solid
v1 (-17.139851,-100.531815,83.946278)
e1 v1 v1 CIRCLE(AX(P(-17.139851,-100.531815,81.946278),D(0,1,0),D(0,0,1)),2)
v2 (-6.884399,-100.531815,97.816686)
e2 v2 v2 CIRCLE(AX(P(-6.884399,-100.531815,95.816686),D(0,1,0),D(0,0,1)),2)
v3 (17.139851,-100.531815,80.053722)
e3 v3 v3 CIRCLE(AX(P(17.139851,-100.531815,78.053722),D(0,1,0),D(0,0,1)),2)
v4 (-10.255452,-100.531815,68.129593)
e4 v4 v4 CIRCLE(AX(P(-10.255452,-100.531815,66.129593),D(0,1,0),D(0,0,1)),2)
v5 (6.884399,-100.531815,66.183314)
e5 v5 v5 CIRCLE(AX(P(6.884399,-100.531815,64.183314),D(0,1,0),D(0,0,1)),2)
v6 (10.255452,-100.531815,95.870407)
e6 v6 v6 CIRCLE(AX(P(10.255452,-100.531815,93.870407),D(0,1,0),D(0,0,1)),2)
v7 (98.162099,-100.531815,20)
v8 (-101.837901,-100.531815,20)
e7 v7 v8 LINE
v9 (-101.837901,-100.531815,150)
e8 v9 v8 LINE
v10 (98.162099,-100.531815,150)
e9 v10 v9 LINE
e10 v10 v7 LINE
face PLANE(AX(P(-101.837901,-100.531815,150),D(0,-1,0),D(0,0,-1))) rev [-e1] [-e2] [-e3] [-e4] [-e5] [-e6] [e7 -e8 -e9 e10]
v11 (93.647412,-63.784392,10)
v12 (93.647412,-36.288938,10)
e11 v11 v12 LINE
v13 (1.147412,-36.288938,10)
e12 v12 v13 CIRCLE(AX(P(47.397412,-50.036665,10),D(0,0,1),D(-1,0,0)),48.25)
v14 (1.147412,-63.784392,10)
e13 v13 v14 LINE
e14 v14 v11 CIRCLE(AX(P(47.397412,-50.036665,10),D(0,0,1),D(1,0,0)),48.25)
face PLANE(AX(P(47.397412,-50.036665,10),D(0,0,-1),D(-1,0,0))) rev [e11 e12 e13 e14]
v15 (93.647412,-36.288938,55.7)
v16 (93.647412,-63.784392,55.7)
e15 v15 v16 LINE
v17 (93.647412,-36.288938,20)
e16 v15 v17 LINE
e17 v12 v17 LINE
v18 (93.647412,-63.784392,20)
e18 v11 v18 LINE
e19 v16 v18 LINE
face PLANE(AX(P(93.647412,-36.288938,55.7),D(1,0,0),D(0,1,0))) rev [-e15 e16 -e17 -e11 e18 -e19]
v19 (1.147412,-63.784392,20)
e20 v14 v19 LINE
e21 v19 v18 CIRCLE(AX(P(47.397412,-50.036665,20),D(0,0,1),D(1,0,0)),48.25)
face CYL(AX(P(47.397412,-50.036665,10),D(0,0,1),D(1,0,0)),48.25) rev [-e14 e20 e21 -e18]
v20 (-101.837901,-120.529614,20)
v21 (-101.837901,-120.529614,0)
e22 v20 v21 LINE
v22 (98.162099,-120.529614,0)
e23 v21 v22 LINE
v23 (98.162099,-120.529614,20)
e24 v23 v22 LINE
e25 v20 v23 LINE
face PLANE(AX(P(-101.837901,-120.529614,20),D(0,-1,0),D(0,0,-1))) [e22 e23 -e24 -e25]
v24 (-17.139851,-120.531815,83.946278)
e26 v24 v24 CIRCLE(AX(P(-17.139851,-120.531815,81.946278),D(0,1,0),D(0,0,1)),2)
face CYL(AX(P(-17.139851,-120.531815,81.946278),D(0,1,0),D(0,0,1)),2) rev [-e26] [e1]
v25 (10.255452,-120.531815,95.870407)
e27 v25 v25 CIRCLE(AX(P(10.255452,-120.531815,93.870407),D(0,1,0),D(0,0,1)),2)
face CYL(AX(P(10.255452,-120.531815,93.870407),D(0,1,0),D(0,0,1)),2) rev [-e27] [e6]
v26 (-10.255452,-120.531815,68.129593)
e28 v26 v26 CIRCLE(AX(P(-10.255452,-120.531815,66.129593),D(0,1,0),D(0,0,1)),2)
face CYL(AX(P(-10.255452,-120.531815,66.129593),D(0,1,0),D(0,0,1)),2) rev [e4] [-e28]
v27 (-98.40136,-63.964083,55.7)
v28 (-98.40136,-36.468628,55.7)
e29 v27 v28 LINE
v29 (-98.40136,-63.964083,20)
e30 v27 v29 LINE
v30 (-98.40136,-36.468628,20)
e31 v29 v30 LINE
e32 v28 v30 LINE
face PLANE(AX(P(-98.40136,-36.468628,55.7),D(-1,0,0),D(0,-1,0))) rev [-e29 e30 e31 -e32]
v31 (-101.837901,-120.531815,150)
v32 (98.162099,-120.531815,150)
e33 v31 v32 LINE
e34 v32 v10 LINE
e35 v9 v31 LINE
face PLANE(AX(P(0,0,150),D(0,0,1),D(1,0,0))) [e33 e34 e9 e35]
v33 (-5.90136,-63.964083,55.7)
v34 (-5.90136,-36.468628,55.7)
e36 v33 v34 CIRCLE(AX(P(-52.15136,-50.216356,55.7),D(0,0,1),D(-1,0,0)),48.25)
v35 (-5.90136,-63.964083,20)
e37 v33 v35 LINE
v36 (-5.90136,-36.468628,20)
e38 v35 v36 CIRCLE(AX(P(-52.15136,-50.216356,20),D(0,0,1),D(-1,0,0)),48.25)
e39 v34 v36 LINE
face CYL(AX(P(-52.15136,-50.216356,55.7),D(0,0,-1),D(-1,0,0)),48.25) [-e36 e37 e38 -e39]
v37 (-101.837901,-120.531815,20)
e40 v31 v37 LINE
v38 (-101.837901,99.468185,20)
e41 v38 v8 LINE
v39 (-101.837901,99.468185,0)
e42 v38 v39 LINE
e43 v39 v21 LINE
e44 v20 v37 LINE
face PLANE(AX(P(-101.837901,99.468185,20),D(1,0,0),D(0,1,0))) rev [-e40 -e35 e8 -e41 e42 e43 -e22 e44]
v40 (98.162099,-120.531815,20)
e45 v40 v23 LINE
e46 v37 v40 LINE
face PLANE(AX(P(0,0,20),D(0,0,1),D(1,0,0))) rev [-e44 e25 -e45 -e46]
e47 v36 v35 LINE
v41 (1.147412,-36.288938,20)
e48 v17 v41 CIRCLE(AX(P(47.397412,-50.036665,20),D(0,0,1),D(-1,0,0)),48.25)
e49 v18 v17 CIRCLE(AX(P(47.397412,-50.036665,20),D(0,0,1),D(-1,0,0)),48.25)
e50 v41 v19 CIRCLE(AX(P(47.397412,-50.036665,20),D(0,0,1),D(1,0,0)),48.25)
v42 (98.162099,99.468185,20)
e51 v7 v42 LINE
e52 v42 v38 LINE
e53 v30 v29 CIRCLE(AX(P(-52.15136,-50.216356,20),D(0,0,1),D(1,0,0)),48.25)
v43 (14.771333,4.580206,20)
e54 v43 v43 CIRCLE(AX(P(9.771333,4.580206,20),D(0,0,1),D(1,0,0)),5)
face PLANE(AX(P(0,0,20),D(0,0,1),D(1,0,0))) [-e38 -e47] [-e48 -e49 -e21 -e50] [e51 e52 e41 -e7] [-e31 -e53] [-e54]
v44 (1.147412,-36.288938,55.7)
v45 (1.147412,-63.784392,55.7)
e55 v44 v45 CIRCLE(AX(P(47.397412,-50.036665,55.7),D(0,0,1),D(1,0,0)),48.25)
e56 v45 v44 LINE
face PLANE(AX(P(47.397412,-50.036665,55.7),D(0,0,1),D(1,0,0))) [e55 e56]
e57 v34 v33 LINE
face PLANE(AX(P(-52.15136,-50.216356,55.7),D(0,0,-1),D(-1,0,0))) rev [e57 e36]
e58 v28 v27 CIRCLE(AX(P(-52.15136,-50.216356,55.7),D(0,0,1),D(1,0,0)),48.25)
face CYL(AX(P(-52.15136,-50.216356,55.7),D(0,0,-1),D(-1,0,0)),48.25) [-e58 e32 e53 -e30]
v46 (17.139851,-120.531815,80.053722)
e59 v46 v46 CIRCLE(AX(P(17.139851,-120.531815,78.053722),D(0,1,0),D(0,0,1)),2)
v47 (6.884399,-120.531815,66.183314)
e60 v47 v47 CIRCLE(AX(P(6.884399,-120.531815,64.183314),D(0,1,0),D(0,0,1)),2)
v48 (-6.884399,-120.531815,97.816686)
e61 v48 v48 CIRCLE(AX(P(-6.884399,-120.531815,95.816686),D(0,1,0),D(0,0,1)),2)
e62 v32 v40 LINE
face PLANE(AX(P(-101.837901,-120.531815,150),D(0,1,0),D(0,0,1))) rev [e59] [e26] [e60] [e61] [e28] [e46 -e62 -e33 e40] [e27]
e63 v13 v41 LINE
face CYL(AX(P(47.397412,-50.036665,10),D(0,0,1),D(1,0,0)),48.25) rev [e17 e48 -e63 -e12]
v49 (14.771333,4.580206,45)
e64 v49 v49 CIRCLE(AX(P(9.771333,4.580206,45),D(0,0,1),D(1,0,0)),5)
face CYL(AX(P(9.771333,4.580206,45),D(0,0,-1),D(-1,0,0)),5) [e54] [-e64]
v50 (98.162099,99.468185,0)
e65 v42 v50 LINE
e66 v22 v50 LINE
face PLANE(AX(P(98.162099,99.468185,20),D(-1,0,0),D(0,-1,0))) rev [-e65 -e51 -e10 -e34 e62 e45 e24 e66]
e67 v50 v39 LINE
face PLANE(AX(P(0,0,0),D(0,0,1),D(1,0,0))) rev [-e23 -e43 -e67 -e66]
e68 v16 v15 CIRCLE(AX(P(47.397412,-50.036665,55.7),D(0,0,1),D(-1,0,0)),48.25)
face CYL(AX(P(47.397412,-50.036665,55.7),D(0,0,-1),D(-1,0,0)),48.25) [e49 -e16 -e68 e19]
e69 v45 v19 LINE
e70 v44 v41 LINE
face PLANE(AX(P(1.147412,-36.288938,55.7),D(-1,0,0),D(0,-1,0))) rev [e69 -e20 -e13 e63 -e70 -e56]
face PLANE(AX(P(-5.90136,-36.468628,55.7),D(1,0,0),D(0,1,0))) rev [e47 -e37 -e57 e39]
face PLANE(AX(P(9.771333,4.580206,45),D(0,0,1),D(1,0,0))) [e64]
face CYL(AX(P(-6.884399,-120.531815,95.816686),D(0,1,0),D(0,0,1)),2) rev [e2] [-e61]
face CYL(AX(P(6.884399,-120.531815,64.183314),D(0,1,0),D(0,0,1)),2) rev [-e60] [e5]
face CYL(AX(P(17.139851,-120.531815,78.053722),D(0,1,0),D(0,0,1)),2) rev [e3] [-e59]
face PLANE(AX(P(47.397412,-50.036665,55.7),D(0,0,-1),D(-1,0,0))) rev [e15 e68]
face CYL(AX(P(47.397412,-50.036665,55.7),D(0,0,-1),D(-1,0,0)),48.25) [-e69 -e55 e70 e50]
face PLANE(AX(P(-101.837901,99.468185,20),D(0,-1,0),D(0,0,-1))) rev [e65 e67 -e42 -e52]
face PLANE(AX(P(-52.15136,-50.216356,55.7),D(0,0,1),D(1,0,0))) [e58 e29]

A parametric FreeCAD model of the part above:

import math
import FreeCAD as App
import Part
import Sketcher

V = App.Vector


def add_polygon(sketch, points):
    """Adds a closed chain of lines whose ends are joined by coincident constraints."""
    first, n = sketch.GeometryCount, len(points)
    for a, b in zip(points, points[1:] + points[:1]):
        sketch.addGeometry(Part.LineSegment(App.Vector(*a, 0), App.Vector(*b, 0)), False)
    for i in range(n):
        sketch.addConstraint(Sketcher.Constraint("Coincident", first + i, 2, first + (i + 1) % n, 1))

doc = App.newDocument("Part")
body = doc.addObject("PartDesign::Body", "Body")

sketch1 = body.newObject("Sketcher::SketchObject", "Sketch")
sketch1.AttachmentSupport = (doc.getObject("XY_Plane"), [""])
sketch1.MapMode = "FlatFace"
add_polygon(sketch1, [(-102, 99), (-102, -101), (98, -101), (98, 99)])
sketch1.addConstraint(Sketcher.Constraint("Vertical", 0))
sketch1.addConstraint(Sketcher.Constraint("Horizontal", 1))
sketch1.addConstraint(Sketcher.Constraint("Vertical", 2))
sketch1.addConstraint(Sketcher.Constraint("Horizontal", 3))
sketch1.addConstraint(Sketcher.Constraint("Equal", 3, 0))
sketch1.addConstraint(Sketcher.Constraint("DistanceX", 1, 1, 1, 2, 200.0))
sketch1.addConstraint(Sketcher.Constraint("DistanceX", 0, 2, -1, 1, 101.837901))
sketch1.addConstraint(Sketcher.Constraint("DistanceY", 0, 2, -1, 1, 100.531815))
pad1 = body.newObject("PartDesign::Pad", "Pad")
pad1.Profile = sketch1
pad1.Length = 20

sketch2 = body.newObject("Sketcher::SketchObject", "Sketch001")
sketch2.AttachmentSupport = (doc.getObject("XY_Plane"), [""])
sketch2.MapMode = "FlatFace"
sketch2.AttachmentOffset = App.Placement(V(0, 0, 20), App.Rotation())
sketch2.addGeometry(Part.LineSegment(V(1, -64, 0), V(1, -36, 0)), False)
sketch2.addGeometry(Part.ArcOfCircle(Part.Circle(V(47, -50, 0), V(0, 0, 1), 48), math.radians(163), math.radians(197)), False)
sketch2.addGeometry(Part.LineSegment(V(94, -36, 0), V(94, -64, 0)), False)
sketch2.addGeometry(Part.ArcOfCircle(Part.Circle(V(47, -50, 0), V(0, 0, 1), 48), math.radians(-17), math.radians(17)), False)
sketch2.addConstraint(Sketcher.Constraint("Coincident", 0, 1, 1, 2))
sketch2.addConstraint(Sketcher.Constraint("Coincident", 1, 1, 0, 2))
sketch2.addConstraint(Sketcher.Constraint("Coincident", 2, 1, 3, 2))
sketch2.addConstraint(Sketcher.Constraint("Coincident", 3, 1, 2, 2))
sketch2.addConstraint(Sketcher.Constraint("Vertical", 0))
sketch2.addConstraint(Sketcher.Constraint("Vertical", 2))
sketch2.addConstraint(Sketcher.Constraint("Coincident", 3, 3, 1, 3))
sketch2.addConstraint(Sketcher.Constraint("Equal", 1, 3))
sketch2.addConstraint(Sketcher.Constraint("Horizontal", 1, 1, 2, 1))
sketch2.addConstraint(Sketcher.Constraint("Radius", 1, 48.25))
sketch2.addConstraint(Sketcher.Constraint("DistanceX", 1, 1, 2, 1, 92.5))
sketch2.addConstraint(Sketcher.Constraint("DistanceY", 0, 1, -1, 1, 63.784392))
sketch2.addConstraint(Sketcher.Constraint("DistanceX", -1, 1, 1, 3, 47.397412))
pad2 = body.newObject("PartDesign::Pad", "Pad001")
pad2.Profile = sketch2
pad2.Length = 35.7

sketch3 = body.newObject("Sketcher::SketchObject", "Sketch002")
sketch3.AttachmentSupport = (doc.getObject("XY_Plane"), [""])
sketch3.MapMode = "FlatFace"
sketch3.AttachmentOffset = App.Placement(V(0, 0, 20), App.Rotation())
sketch3.addGeometry(Part.LineSegment(V(-98, -64, 0), V(-98, -36, 0)), False)
sketch3.addGeometry(Part.ArcOfCircle(Part.Circle(V(-52, -50, 0), V(0, 0, 1), 48), math.radians(163), math.radians(197)), False)
sketch3.addGeometry(Part.LineSegment(V(-6, -36, 0), V(-6, -64, 0)), False)
sketch3.addGeometry(Part.ArcOfCircle(Part.Circle(V(-52, -50, 0), V(0, 0, 1), 48), math.radians(-17), math.radians(17)), False)
sketch3.addConstraint(Sketcher.Constraint("Coincident", 0, 1, 1, 2))
sketch3.addConstraint(Sketcher.Constraint("Coincident", 1, 1, 0, 2))
sketch3.addConstraint(Sketcher.Constraint("Coincident", 2, 1, 3, 2))
sketch3.addConstraint(Sketcher.Constraint("Coincident", 3, 1, 2, 2))
sketch3.addConstraint(Sketcher.Constraint("Vertical", 0))
sketch3.addConstraint(Sketcher.Constraint("Vertical", 2))
sketch3.addConstraint(Sketcher.Constraint("Coincident", 3, 3, 1, 3))
sketch3.addConstraint(Sketcher.Constraint("Equal", 1, 3))
sketch3.addConstraint(Sketcher.Constraint("Horizontal", 1, 1, 2, 1))
sketch3.addConstraint(Sketcher.Constraint("Radius", 1, 48.25))
sketch3.addConstraint(Sketcher.Constraint("DistanceX", 1, 1, 2, 1, 92.5))
sketch3.addConstraint(Sketcher.Constraint("DistanceX", 1, 3, -1, 1, 52.15136))
sketch3.addConstraint(Sketcher.Constraint("DistanceY", 1, 1, -1, 1, 36.468628))
pad3 = body.newObject("PartDesign::Pad", "Pad002")
pad3.Profile = sketch3
pad3.Length = 35.7
body2 = doc.addObject("PartDesign::Body", "Body001")

sketch4 = body2.newObject("Sketcher::SketchObject", "Sketch003")
sketch4.AttachmentSupport = (doc.getObject("XY_Plane001"), [""])
sketch4.MapMode = "FlatFace"
sketch4.AttachmentOffset = App.Placement(V(0, 0, 20), App.Rotation())
add_polygon(sketch4, [(-102, -101), (-102, -121), (98, -121), (98, -101)])
sketch4.addConstraint(Sketcher.Constraint("Vertical", 0))
sketch4.addConstraint(Sketcher.Constraint("Horizontal", 1))
sketch4.addConstraint(Sketcher.Constraint("Vertical", 2))
sketch4.addConstraint(Sketcher.Constraint("Horizontal", 3))
sketch4.addConstraint(Sketcher.Constraint("DistanceX", 1, 1, 1, 2, 200.0))
sketch4.addConstraint(Sketcher.Constraint("DistanceY", 0, 2, 0, 1, 20.0))
sketch4.addConstraint(Sketcher.Constraint("DistanceX", 0, 2, -1, 1, 101.837901))
sketch4.addConstraint(Sketcher.Constraint("DistanceY", 0, 2, -1, 1, 120.531815))
pad4 = body2.newObject("PartDesign::Pad", "Pad003")
pad4.Profile = sketch4
pad4.Length = 130
body.AllowCompound = True
doc.recompute()

boolean = body.newObject("PartDesign::Boolean", "Boolean")
boolean.Type = "Fuse"
boolean.addObjects([body2])

sketch5 = body.newObject("Sketcher::SketchObject", "Sketch004")
sketch5.AttachmentSupport = (doc.getObject("YZ_Plane"), [""])
sketch5.MapMode = "FlatFace"
sketch5.AttachmentOffset = App.Placement(V(0, 0, 98.162099), App.Rotation())
add_polygon(sketch5, [(-101, 20), (-121, 20), (-121, 0), (-101, 0)])
sketch5.addConstraint(Sketcher.Constraint("Horizontal", 0))
sketch5.addConstraint(Sketcher.Constraint("Vertical", 1))
sketch5.addConstraint(Sketcher.Constraint("Horizontal", 2))
sketch5.addConstraint(Sketcher.Constraint("Vertical", 3))
sketch5.addConstraint(Sketcher.Constraint("PointOnObject", 1, 2, -1))
sketch5.addConstraint(Sketcher.Constraint("DistanceY", 1, 2, 1, 1, 20.0))
sketch5.addConstraint(Sketcher.Constraint("DistanceX", 0, 2, 0, 1, 19.997799))
sketch5.addConstraint(Sketcher.Constraint("DistanceX", 0, 2, -1, 1, 120.529614))
pad5 = body.newObject("PartDesign::Pad", "Pad004")
pad5.Profile = sketch5
pad5.Length = 200
pad5.Reversed = True

sketch6 = body.newObject("Sketcher::SketchObject", "Sketch005")
sketch6.AttachmentSupport = (doc.getObject("XZ_Plane"), [""])
sketch6.MapMode = "FlatFace"
sketch6.AttachmentOffset = App.Placement(V(0, 0, 100.531815), App.Rotation())
sketch6.addGeometry(Part.Circle(V(-17.1, 81.9, 0), V(0, 0, 1), 2), False)
sketch6.addGeometry(Part.Circle(V(-10.3, 66.1, 0), V(0, 0, 1), 2), False)
sketch6.addGeometry(Part.Circle(V(6.9, 64.2, 0), V(0, 0, 1), 2), False)
sketch6.addGeometry(Part.Circle(V(17.1, 78.1, 0), V(0, 0, 1), 2), False)
sketch6.addGeometry(Part.Circle(V(10.3, 93.9, 0), V(0, 0, 1), 2), False)
sketch6.addGeometry(Part.Circle(V(-6.9, 95.8, 0), V(0, 0, 1), 2), False)
sketch6.addConstraint(Sketcher.Constraint("Equal", 0, 1))
sketch6.addConstraint(Sketcher.Constraint("Equal", 1, 2))
sketch6.addConstraint(Sketcher.Constraint("Equal", 2, 3))
sketch6.addConstraint(Sketcher.Constraint("Equal", 3, 4))
sketch6.addConstraint(Sketcher.Constraint("Equal", 4, 5))
sketch6.addConstraint(Sketcher.Constraint("Diameter", 0, 4.0))
sketch6.addConstraint(Sketcher.Constraint("DistanceX", -1, 1, 2, 3, 6.884399))
sketch6.addConstraint(Sketcher.Constraint("DistanceX", 5, 3, -1, 1, 6.884399))
sketch6.addConstraint(Sketcher.Constraint("DistanceX", 0, 3, 1, 3, 6.884399))
sketch6.addConstraint(Sketcher.Constraint("DistanceX", 4, 3, 3, 3, 6.884399))
sketch6.addConstraint(Sketcher.Constraint("DistanceX", 0, 3, -1, 1, 17.139851))
sketch6.addConstraint(Sketcher.Constraint("DistanceY", -1, 1, 0, 3, 81.946278))
sketch6.addConstraint(Sketcher.Constraint("DistanceX", -1, 1, 3, 3, 17.139851))
sketch6.addConstraint(Sketcher.Constraint("DistanceY", -1, 1, 3, 3, 78.053722))
sketch6.addConstraint(Sketcher.Constraint("DistanceY", 2, 3, 1, 3, 1.946278))
sketch6.addConstraint(Sketcher.Constraint("DistanceY", 1, 3, 3, 3, 11.924129))
sketch6.addConstraint(Sketcher.Constraint("DistanceY", 0, 3, 4, 3, 11.924129))
sketch6.addConstraint(Sketcher.Constraint("DistanceY", 4, 3, 5, 3, 1.946278))
pocket1 = body.newObject("PartDesign::Pocket", "Pocket")
pocket1.Profile = sketch6
pocket1.Length = 20
pocket1.Reversed = True

sketch7 = body.newObject("Sketcher::SketchObject", "Sketch006")
sketch7.AttachmentSupport = (doc.getObject("XY_Plane"), [""])
sketch7.MapMode = "FlatFace"
sketch7.AttachmentOffset = App.Placement(V(0, 0, 10), App.Rotation())
sketch7.addGeometry(Part.LineSegment(V(1, -36, 0), V(1, -64, 0)), False)
sketch7.addGeometry(Part.ArcOfCircle(Part.Circle(V(47, -50, 0), V(0, 0, 1), 48), math.radians(-163), math.radians(-17)), False)
sketch7.addGeometry(Part.LineSegment(V(94, -64, 0), V(94, -36, 0)), False)
sketch7.addGeometry(Part.ArcOfCircle(Part.Circle(V(47, -50, 0), V(0, 0, 1), 48), math.radians(17), math.radians(163)), False)
sketch7.addConstraint(Sketcher.Constraint("Coincident", 0, 2, 1, 1))
sketch7.addConstraint(Sketcher.Constraint("Coincident", 1, 2, 2, 1))
sketch7.addConstraint(Sketcher.Constraint("Coincident", 2, 2, 3, 1))
sketch7.addConstraint(Sketcher.Constraint("Coincident", 3, 2, 0, 1))
sketch7.addConstraint(Sketcher.Constraint("Vertical", 0))
sketch7.addConstraint(Sketcher.Constraint("Vertical", 2))
sketch7.addConstraint(Sketcher.Constraint("Coincident", 3, 3, 1, 3))
sketch7.addConstraint(Sketcher.Constraint("Equal", 1, 3))
sketch7.addConstraint(Sketcher.Constraint("Horizontal", 0, 2, 1, 2))
sketch7.addConstraint(Sketcher.Constraint("Radius", 1, 48.25))
sketch7.addConstraint(Sketcher.Constraint("DistanceX", 0, 2, 1, 2, 92.5))
sketch7.addConstraint(Sketcher.Constraint("DistanceY", 0, 2, -1, 1, 63.784392))
sketch7.addConstraint(Sketcher.Constraint("DistanceX", -1, 1, 1, 3, 47.397412))
pocket2 = body.newObject("PartDesign::Pocket", "Pocket001")
pocket2.Profile = sketch7
pocket2.Length = 10
pocket2.Reversed = True

sketch8 = body.newObject("Sketcher::SketchObject", "Sketch007")
sketch8.AttachmentSupport = (doc.getObject("XY_Plane"), [""])
sketch8.MapMode = "FlatFace"
sketch8.AttachmentOffset = App.Placement(V(0, 0, 20), App.Rotation())
sketch8.addGeometry(Part.Circle(V(10, 5, 0), V(0, 0, 1), 5), False)
sketch8.addConstraint(Sketcher.Constraint("Diameter", 0, 10.0))
sketch8.addConstraint(Sketcher.Constraint("DistanceX", -1, 1, 0, 3, 9.771333))
sketch8.addConstraint(Sketcher.Constraint("DistanceY", -1, 1, 0, 3, 4.580206))
pad6 = body.newObject("PartDesign::Pad", "Pad005")
pad6.Profile = sketch8
pad6.Length = 25

doc.recompute()
